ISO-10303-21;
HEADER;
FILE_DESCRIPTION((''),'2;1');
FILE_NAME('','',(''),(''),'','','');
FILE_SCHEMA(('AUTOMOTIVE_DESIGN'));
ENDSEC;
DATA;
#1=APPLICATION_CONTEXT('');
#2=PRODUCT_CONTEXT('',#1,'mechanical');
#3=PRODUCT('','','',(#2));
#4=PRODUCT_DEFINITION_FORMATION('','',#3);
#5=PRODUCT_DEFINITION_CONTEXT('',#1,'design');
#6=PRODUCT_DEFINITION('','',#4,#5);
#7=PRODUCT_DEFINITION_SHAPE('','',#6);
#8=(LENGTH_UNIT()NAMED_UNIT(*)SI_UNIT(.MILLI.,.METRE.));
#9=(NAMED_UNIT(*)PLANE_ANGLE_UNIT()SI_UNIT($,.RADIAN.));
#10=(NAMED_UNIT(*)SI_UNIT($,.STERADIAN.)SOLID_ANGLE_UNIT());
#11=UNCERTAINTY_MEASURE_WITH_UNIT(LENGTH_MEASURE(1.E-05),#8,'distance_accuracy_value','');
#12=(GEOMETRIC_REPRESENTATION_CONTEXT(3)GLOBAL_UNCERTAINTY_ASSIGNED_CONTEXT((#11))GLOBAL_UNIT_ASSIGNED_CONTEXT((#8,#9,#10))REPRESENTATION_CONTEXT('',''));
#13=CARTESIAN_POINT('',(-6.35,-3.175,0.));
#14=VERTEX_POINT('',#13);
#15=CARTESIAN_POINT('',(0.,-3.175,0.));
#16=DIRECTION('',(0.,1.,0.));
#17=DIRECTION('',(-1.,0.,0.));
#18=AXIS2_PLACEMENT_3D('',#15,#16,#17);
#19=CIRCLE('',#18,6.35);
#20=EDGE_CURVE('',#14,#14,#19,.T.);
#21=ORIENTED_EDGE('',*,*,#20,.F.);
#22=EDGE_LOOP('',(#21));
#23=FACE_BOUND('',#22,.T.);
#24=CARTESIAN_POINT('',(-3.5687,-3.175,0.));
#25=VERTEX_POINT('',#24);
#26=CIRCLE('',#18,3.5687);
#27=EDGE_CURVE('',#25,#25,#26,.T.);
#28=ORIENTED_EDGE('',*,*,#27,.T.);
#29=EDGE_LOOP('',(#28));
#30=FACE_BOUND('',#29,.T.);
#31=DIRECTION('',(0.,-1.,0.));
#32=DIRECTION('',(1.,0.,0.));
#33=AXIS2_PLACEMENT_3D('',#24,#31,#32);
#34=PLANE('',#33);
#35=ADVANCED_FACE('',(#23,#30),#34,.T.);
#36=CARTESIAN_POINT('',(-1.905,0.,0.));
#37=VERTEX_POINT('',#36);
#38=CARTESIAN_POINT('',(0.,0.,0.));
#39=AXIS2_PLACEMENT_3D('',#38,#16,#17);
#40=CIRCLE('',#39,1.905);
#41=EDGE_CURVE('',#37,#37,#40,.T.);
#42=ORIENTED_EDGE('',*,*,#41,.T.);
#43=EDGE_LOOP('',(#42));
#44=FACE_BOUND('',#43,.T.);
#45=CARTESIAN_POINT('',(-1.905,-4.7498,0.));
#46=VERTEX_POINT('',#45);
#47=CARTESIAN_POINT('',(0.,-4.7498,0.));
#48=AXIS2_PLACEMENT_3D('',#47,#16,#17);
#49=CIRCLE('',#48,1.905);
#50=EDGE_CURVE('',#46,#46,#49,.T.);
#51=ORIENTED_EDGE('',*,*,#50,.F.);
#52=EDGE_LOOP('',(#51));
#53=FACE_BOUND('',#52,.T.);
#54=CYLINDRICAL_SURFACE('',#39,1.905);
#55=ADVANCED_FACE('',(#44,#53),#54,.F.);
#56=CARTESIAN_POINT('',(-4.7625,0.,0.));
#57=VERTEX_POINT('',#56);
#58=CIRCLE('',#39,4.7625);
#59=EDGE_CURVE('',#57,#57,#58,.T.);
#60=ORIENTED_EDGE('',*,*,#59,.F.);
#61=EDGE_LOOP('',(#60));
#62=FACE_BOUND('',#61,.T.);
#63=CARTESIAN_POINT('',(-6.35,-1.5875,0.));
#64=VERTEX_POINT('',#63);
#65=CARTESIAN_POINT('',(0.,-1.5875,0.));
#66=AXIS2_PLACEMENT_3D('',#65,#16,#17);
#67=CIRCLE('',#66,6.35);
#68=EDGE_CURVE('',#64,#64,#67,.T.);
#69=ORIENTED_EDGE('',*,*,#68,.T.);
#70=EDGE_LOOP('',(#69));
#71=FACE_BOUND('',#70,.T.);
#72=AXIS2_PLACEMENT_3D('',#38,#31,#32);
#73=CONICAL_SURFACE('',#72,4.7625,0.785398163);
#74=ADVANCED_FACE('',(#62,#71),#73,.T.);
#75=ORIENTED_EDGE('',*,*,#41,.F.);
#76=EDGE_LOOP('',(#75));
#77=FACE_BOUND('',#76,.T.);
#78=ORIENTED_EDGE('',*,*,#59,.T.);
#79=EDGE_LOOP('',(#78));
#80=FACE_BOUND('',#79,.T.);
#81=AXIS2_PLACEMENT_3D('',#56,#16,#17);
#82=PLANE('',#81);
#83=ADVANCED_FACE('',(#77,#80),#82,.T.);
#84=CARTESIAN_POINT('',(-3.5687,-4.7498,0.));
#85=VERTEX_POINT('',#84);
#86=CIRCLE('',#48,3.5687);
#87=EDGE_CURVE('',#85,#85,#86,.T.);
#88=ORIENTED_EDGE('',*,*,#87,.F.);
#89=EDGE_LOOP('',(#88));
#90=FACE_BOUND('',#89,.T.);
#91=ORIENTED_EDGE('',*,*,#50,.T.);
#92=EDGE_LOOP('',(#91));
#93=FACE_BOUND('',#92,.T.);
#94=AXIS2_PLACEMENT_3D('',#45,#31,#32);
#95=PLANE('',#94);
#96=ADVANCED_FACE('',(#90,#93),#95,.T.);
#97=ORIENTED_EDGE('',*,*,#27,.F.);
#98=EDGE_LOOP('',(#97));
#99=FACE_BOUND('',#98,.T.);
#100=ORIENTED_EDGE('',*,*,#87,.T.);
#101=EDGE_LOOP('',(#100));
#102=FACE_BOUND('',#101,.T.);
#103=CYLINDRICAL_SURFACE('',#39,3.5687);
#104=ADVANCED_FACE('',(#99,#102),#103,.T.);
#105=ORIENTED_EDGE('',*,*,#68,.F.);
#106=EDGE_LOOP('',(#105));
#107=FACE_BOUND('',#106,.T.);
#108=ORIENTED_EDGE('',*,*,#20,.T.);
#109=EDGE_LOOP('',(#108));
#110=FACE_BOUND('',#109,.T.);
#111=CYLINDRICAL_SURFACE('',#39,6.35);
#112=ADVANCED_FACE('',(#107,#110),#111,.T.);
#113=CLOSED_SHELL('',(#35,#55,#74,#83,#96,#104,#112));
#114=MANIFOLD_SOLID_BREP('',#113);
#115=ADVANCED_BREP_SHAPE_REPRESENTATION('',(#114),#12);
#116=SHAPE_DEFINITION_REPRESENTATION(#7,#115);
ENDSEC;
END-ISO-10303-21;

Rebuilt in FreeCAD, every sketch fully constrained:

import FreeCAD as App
import Part
import Sketcher
from FreeCAD import Vector
Q = App.Units.Quantity

doc = App.newDocument("Part")
body = doc.addObject("PartDesign::Body", "Body")

# Sketch on XY plane
sketch1 = doc.addObject("Sketcher::SketchObject", "Sketch")
body.addObject(sketch1)
sketch1.AttachmentSupport = (doc.XY_Plane, [""])
sketch1.MapMode = "FlatFace"
sketch1.addGeometry(Part.LineSegment(Vector(-1.9, -4.7, 0), Vector(-1.9, 0, 0)), False)
sketch1.addGeometry(Part.LineSegment(Vector(-1.9, 0, 0), Vector(-4.8, 0, 0)), False)
sketch1.addGeometry(Part.LineSegment(Vector(-4.8, 0, 0), Vector(-6.3, -1.6, 0)), False)
sketch1.addGeometry(Part.LineSegment(Vector(-6.3, -1.6, 0), Vector(-6.3, -3.2, 0)), False)
sketch1.addGeometry(Part.LineSegment(Vector(-6.3, -3.2, 0), Vector(-3.6, -3.2, 0)), False)
sketch1.addGeometry(Part.LineSegment(Vector(-3.6, -3.2, 0), Vector(-3.6, -4.7, 0)), False)
sketch1.addGeometry(Part.LineSegment(Vector(-3.6, -4.7, 0), Vector(-1.9, -4.7, 0)), False)
sketch1.addConstraint(Sketcher.Constraint("Coincident", 0, 2, 1, 1))
sketch1.addConstraint(Sketcher.Constraint("Coincident", 1, 2, 2, 1))
sketch1.addConstraint(Sketcher.Constraint("Coincident", 2, 2, 3, 1))
sketch1.addConstraint(Sketcher.Constraint("Coincident", 3, 2, 4, 1))
sketch1.addConstraint(Sketcher.Constraint("Coincident", 4, 2, 5, 1))
sketch1.addConstraint(Sketcher.Constraint("Coincident", 5, 2, 6, 1))
sketch1.addConstraint(Sketcher.Constraint("Coincident", 6, 2, 0, 1))
sketch1.addConstraint(Sketcher.Constraint("Vertical", 0))
sketch1.addConstraint(Sketcher.Constraint("Horizontal", 1))
sketch1.addConstraint(Sketcher.Constraint("Vertical", 3))
sketch1.addConstraint(Sketcher.Constraint("Horizontal", 4))
sketch1.addConstraint(Sketcher.Constraint("Vertical", 5))
sketch1.addConstraint(Sketcher.Constraint("Horizontal", 6))
sketch1.addConstraint(Sketcher.Constraint("PointOnObject", 0, 2, -1))
sketch1.addConstraint(Sketcher.Constraint("Angle", 2, Q("-135 deg")))
sketch1.addConstraint(Sketcher.Constraint("DistanceY", 0, 1, 0, 2, Q("0.187 in")))
sketch1.addConstraint(Sketcher.Constraint("DistanceY", 3, 2, 3, 1, Q("0.0625 in")))
sketch1.addConstraint(Sketcher.Constraint("DistanceY", 5, 2, 5, 1, Q("0.062 in")))
sketch1.addConstraint(Sketcher.Constraint("DistanceX", 2, 2, -1, 1, Q("0.25 in")))
sketch1.addConstraint(Sketcher.Constraint("DistanceX", 1, 2, 1, 1, Q("0.1125 in")))
sketch1.addConstraint(Sketcher.Constraint("DistanceX", 4, 1, 4, 2, Q("0.1095 in")))
revolution = doc.addObject("PartDesign::Revolution", "Revolution")
body.addObject(revolution)
revolution.Profile = sketch1
revolution.ReferenceAxis = (sketch1, ["V_Axis"])
revolution.Angle = 360

doc.recompute()
